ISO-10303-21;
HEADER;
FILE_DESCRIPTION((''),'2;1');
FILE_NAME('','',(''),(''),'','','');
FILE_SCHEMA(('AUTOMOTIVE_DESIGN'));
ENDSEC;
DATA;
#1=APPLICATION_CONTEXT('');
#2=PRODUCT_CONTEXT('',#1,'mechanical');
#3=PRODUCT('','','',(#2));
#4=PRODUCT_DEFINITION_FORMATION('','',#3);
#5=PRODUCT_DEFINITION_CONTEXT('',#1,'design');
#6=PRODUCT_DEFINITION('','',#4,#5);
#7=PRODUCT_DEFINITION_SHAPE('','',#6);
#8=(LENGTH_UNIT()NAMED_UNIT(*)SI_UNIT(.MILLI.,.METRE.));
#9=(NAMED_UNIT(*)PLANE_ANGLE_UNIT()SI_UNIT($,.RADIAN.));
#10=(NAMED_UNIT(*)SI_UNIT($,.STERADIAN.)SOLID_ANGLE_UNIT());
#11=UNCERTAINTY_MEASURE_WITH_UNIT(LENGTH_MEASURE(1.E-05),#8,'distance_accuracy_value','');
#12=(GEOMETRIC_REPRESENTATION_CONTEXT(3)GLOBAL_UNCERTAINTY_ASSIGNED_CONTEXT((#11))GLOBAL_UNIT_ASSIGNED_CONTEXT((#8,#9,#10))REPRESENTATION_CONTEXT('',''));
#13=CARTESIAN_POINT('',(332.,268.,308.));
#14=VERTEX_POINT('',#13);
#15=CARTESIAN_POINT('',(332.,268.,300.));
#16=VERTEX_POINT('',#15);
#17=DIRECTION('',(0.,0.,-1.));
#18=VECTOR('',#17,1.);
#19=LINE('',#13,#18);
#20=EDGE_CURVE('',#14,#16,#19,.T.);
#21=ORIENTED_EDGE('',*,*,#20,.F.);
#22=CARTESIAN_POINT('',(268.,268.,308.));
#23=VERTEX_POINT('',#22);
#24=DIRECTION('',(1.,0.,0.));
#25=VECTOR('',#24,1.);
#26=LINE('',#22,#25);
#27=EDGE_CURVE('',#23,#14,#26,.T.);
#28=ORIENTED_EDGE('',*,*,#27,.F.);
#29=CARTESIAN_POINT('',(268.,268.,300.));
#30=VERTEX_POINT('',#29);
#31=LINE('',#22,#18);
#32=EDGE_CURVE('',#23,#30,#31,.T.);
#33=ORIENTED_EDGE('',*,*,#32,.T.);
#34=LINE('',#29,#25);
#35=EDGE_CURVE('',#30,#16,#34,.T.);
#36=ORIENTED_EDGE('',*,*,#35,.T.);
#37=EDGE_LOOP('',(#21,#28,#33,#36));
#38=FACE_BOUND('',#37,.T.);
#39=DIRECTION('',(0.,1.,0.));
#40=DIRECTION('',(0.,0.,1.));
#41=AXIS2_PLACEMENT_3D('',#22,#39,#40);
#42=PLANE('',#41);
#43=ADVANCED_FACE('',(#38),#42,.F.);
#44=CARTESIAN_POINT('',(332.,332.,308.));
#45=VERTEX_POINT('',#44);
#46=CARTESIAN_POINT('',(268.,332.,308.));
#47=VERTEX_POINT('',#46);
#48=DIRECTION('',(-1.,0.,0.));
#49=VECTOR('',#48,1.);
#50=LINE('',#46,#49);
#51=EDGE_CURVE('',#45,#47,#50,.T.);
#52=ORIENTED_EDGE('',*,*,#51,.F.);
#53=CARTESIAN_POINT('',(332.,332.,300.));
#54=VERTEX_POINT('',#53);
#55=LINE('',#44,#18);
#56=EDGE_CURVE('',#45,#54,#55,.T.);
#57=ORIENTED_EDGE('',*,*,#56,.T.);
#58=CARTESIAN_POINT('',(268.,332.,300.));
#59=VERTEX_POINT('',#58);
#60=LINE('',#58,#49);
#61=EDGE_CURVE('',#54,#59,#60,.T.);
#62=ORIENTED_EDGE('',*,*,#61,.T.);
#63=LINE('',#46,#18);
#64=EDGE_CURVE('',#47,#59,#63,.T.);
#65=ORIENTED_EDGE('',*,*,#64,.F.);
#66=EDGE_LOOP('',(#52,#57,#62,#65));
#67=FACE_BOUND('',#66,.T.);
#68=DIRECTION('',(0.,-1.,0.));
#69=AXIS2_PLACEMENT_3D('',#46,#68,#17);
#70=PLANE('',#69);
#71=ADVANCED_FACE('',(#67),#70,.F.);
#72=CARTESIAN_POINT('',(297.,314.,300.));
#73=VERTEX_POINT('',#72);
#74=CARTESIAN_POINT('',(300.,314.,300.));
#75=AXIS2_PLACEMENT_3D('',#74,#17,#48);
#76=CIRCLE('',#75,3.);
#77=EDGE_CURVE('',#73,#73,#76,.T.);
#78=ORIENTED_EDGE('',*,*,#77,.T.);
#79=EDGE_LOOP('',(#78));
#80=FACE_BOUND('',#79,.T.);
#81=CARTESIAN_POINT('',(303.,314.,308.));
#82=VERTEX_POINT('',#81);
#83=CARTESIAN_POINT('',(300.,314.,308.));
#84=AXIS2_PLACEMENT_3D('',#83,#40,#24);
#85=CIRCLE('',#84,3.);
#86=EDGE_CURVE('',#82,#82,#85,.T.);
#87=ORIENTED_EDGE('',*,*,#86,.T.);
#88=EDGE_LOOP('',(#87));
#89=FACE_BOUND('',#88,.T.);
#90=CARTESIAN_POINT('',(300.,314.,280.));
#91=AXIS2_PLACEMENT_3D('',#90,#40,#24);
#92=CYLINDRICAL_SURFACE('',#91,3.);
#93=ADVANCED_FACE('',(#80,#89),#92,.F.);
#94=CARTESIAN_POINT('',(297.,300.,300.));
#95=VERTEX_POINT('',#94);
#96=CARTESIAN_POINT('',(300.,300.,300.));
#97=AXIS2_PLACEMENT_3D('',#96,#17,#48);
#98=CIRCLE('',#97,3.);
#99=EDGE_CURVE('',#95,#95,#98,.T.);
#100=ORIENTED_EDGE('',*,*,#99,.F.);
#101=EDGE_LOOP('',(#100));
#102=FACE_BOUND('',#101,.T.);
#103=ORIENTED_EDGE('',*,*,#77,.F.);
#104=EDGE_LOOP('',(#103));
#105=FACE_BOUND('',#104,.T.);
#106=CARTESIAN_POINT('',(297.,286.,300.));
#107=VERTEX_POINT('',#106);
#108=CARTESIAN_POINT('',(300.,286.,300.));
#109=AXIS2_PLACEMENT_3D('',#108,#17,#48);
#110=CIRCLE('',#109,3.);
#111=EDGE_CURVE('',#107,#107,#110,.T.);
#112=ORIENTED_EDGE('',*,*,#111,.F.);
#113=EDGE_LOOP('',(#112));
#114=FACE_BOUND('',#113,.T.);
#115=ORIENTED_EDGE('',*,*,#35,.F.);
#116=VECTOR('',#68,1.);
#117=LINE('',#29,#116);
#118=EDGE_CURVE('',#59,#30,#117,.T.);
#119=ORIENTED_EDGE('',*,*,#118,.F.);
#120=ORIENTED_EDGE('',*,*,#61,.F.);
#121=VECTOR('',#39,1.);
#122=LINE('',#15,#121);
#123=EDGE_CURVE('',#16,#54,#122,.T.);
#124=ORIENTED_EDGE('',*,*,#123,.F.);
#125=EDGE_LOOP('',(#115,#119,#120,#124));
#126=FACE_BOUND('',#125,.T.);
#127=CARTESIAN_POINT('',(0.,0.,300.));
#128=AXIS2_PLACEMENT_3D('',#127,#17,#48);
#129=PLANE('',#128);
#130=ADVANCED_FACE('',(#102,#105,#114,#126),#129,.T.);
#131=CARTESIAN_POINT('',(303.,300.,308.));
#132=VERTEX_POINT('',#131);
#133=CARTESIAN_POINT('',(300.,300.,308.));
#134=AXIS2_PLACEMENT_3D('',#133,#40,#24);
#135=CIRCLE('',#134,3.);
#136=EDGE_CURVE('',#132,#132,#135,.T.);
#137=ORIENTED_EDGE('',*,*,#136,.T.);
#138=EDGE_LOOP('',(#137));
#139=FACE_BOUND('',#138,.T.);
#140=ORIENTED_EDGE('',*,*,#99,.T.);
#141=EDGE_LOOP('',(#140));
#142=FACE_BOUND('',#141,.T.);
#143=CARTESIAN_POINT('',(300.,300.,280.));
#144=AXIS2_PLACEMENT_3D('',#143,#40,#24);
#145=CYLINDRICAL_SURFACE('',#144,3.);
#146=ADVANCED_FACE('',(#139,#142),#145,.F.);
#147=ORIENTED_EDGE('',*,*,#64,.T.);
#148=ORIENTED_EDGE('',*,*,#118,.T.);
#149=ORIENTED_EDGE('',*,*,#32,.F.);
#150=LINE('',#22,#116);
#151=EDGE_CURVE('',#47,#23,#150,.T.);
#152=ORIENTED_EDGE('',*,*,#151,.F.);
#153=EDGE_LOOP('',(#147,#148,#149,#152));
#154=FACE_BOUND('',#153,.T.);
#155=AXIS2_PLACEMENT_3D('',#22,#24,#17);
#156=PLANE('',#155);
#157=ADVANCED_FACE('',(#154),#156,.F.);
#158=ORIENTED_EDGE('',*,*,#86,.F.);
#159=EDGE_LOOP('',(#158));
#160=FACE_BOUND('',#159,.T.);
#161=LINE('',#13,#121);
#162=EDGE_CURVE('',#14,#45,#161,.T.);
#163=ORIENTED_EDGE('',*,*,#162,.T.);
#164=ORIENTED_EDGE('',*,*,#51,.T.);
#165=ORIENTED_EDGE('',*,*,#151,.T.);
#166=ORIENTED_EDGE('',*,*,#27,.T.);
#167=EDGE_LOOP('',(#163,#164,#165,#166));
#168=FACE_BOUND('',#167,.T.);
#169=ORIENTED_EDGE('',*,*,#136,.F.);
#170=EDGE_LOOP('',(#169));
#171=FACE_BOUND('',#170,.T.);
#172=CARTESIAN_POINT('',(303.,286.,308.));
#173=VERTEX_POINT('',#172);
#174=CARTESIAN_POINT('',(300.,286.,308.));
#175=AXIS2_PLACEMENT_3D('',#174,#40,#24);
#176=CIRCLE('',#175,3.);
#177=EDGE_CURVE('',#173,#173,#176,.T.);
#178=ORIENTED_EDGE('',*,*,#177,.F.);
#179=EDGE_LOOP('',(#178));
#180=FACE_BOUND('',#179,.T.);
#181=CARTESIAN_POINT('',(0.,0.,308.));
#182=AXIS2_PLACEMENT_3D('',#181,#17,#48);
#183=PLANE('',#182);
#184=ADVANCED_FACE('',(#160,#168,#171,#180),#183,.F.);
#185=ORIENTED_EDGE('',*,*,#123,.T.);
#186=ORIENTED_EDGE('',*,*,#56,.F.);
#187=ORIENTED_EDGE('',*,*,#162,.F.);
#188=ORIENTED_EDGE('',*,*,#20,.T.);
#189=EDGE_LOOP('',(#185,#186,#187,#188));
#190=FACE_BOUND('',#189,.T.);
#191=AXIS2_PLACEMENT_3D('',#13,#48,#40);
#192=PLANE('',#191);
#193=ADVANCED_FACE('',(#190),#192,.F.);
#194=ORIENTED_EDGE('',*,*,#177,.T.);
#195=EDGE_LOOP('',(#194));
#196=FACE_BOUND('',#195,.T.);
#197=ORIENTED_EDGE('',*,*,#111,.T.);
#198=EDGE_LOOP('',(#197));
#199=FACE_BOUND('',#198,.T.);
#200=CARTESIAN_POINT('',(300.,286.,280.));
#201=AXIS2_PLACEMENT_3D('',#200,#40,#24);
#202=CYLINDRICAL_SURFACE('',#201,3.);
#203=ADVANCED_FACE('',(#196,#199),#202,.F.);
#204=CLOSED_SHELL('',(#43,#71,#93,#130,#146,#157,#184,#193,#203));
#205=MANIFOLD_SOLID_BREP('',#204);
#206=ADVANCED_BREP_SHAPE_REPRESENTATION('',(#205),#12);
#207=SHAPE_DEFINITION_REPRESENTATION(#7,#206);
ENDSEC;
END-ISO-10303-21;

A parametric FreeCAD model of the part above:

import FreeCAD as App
import Part
import Sketcher
from FreeCAD import Vector


def add_polygon(sketch, points):
    """Adds a closed chain of lines whose ends are joined by coincident constraints."""
    first, n = sketch.GeometryCount, len(points)
    for a, b in zip(points, points[1:] + points[:1]):
        sketch.addGeometry(Part.LineSegment(App.Vector(*a, 0), App.Vector(*b, 0)), False)
    for i in range(n):
        sketch.addConstraint(Sketcher.Constraint("Coincident", first + i, 2, first + (i + 1) % n, 1))

doc = App.newDocument("Part")
params = doc.addObject("Spreadsheet::Sheet", "Params")
for row, (alias, value) in enumerate([
    ("sketch1_width", "64 mm"),
    ("pad1_length", "8 mm"),
    ("sketch2_diameter", "6 mm"),
    ("pocket1_length", "28 mm"),
    ("sketch3_diameter", "6 mm"),
    ("pocket2_length", "28 mm"),
    ("sketch4_diameter", "6 mm"),
    ("pocket3_length", "28 mm"),
], start=1):
    params.set(f"A{row}", alias)
    params.set(f"B{row}", "=" + value)
    params.setAlias(f"B{row}", alias)

body = doc.addObject("PartDesign::Body", "Body")

# Sketch on XY plane
sketch1 = doc.addObject("Sketcher::SketchObject", "Sketch")
body.addObject(sketch1)
sketch1.AttachmentSupport = (doc.XY_Plane, [""])
sketch1.MapMode = "FlatFace"
sketch1.AttachmentOffset = App.Placement(Vector(0, 0, 300), App.Rotation())
add_polygon(sketch1, [(268, 332), (268, 268), (332, 268), (332, 332)])  # lines 0-3
sketch1.addConstraint([
    Sketcher.Constraint("Vertical", 0),
    Sketcher.Constraint("Horizontal", 1),
    Sketcher.Constraint("Vertical", 2),
    Sketcher.Constraint("Horizontal", 3),
    Sketcher.Constraint("Equal", 3, 0),
    Sketcher.Constraint("DistanceX", 1, 1, 1, 2, 64.0),
    Sketcher.Constraint("DistanceX", -1, 1, 0, 2, 268.0),
    Sketcher.Constraint("DistanceY", -1, 1, 0, 2, 268.0),
])
sketch1.setExpression("Constraints[9]", "Params.sketch1_width")
pad1 = doc.addObject("PartDesign::Pad", "Pad")
body.addObject(pad1)
pad1.Profile = sketch1
pad1.setExpression("Length", "Params.pad1_length")

# Sketch on XY plane
sketch2 = doc.addObject("Sketcher::SketchObject", "Sketch001")
body.addObject(sketch2)
sketch2.AttachmentSupport = (doc.XY_Plane, [""])
sketch2.MapMode = "FlatFace"
sketch2.AttachmentOffset = App.Placement(Vector(0, 0, 308), App.Rotation())
sketch2.addGeometry(Part.Circle(Vector(300, 300, 0), Vector(0, 0, 1), 3), False)
sketch2.addConstraint([
    Sketcher.Constraint("Diameter", 0, 6.0),
    Sketcher.Constraint("DistanceX", -1, 1, 0, 3, 300.0),
    Sketcher.Constraint("DistanceY", -1, 1, 0, 3, 300.0),
])
sketch2.setExpression("Constraints[0]", "Params.sketch2_diameter")
pocket1 = doc.addObject("PartDesign::Pocket", "Pocket")
body.addObject(pocket1)
pocket1.Profile = sketch2
pocket1.setExpression("Length", "Params.pocket1_length")

# Sketch on XY plane
sketch3 = doc.addObject("Sketcher::SketchObject", "Sketch002")
body.addObject(sketch3)
sketch3.AttachmentSupport = (doc.XY_Plane, [""])
sketch3.MapMode = "FlatFace"
sketch3.AttachmentOffset = App.Placement(Vector(0, 0, 308), App.Rotation())
sketch3.addGeometry(Part.Circle(Vector(300, 314, 0), Vector(0, 0, 1), 3), False)
sketch3.addConstraint([
    Sketcher.Constraint("Diameter", 0, 6.0),
    Sketcher.Constraint("DistanceX", -1, 1, 0, 3, 300.0),
    Sketcher.Constraint("DistanceY", -1, 1, 0, 3, 314.0),
])
sketch3.setExpression("Constraints[0]", "Params.sketch3_diameter")
pocket2 = doc.addObject("PartDesign::Pocket", "Pocket001")
body.addObject(pocket2)
pocket2.Profile = sketch3
pocket2.setExpression("Length", "Params.pocket2_length")

# Sketch on XY plane
sketch4 = doc.addObject("Sketcher::SketchObject", "Sketch003")
body.addObject(sketch4)
sketch4.AttachmentSupport = (doc.XY_Plane, [""])
sketch4.MapMode = "FlatFace"
sketch4.AttachmentOffset = App.Placement(Vector(0, 0, 308), App.Rotation())
sketch4.addGeometry(Part.Circle(Vector(300, 286, 0), Vector(0, 0, 1), 3), False)
sketch4.addConstraint([
    Sketcher.Constraint("Diameter", 0, 6.0),
    Sketcher.Constraint("DistanceX", -1, 1, 0, 3, 300.0),
    Sketcher.Constraint("DistanceY", -1, 1, 0, 3, 286.0),
])
sketch4.setExpression("Constraints[0]", "Params.sketch4_diameter")
pocket3 = doc.addObject("PartDesign::Pocket", "Pocket002")
body.addObject(pocket3)
pocket3.Profile = sketch4
pocket3.setExpression("Length", "Params.pocket3_length")

doc.recompute()
